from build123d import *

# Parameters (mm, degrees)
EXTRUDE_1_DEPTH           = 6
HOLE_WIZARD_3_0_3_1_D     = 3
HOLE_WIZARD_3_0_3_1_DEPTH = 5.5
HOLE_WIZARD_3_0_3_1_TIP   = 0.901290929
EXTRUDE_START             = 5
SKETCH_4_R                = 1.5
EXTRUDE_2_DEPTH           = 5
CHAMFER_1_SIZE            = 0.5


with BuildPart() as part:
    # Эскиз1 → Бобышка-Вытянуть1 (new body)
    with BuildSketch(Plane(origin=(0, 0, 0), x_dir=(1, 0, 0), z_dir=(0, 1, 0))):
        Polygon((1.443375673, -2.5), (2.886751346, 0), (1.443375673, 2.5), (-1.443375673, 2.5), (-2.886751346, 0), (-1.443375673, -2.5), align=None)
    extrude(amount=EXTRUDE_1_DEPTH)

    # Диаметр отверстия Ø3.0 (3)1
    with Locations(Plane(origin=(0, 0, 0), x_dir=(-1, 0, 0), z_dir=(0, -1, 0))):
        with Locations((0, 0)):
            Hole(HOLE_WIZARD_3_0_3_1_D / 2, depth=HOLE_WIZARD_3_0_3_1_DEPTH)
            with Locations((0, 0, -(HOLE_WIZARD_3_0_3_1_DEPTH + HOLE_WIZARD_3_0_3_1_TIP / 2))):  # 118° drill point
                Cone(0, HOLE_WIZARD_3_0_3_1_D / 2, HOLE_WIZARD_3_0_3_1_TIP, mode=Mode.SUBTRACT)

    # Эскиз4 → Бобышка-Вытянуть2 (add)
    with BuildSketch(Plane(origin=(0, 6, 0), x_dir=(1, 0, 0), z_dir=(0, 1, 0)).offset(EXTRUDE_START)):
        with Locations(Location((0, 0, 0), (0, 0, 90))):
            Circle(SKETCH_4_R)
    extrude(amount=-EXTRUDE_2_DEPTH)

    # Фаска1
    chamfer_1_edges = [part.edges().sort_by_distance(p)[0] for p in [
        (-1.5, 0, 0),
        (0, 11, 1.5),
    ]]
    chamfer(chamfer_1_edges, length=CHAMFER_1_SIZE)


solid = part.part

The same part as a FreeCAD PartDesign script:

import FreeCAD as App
import Part
import Sketcher
from FreeCAD import Vector
Q = App.Units.Quantity


def edges_at(feature, points):
    """Names of the edges that pass closest to the given points."""
    edges = feature.Shape.Edges
    near = lambda p: min(range(len(edges)), key=lambda i: edges[i].distToShape(Part.Vertex(*p))[0])
    return sorted({f"Edge{near(p) + 1}" for p in points})


def add_polygon(sketch, points):
    """Adds a closed chain of lines whose ends are joined by coincident constraints."""
    first, n = sketch.GeometryCount, len(points)
    for a, b in zip(points, points[1:] + points[:1]):
        sketch.addGeometry(Part.LineSegment(App.Vector(*a, 0), App.Vector(*b, 0)), False)
    for i in range(n):
        sketch.addConstraint(Sketcher.Constraint("Coincident", first + i, 2, first + (i + 1) % n, 1))

doc = App.newDocument("Part")
body = doc.addObject("PartDesign::Body", "Body")

# Sketch on XZ plane
sketch1 = body.newObject("Sketcher::SketchObject", "Sketch")
sketch1.AttachmentSupport = (doc.getObject("XZ_Plane"), [""])
sketch1.MapMode = "FlatFace"
add_polygon(sketch1, [(1.4, 2.5), (2.9, 0), (1.4, -2.5), (-1.4, -2.5), (-2.9, 0), (-1.4, 2.5)])  # lines 0-5
sketch1.addConstraint([
    Sketcher.Constraint("Horizontal", 2),
    Sketcher.Constraint("Horizontal", 5),
    Sketcher.Constraint("Symmetric", 0, 2, 3, 2, -1, 1),
    Sketcher.Constraint("Symmetric", 1, 2, 4, 2, -1, 1),
    Sketcher.Constraint("PointOnObject", 0, 2, -1),
    Sketcher.Constraint("Parallel", 0, 3),
    Sketcher.Constraint("Vertical", 2, 2, 4, 2),
    Sketcher.Constraint("Angle", 0, Q("-60 deg")),
    Sketcher.Constraint("DistanceY", 2, 2, 4, 2, 5.0),
    Sketcher.Constraint("DistanceX", 2, 2, 2, 1, 2.886751),
])
pad1 = body.newObject("PartDesign::Pad", "Pad")
pad1.Profile = sketch1
pad1.Length = 6
pad1.Reversed = True

# Sketch on XZ plane
sketch2 = body.newObject("Sketcher::SketchObject", "Sketch001")
sketch2.AttachmentSupport = (doc.getObject("XZ_Plane"), [""])
sketch2.MapMode = "FlatFace"
sketch2.addGeometry(Part.Circle(Vector(0, 0, 0), Vector(0, 0, 1), 1.5), False)
sketch2.addConstraint([
    Sketcher.Constraint("Coincident", 0, 3, -1, 1),
    Sketcher.Constraint("Diameter", 0, 3.0),
])
doc.recompute()
hole = body.newObject("PartDesign::Hole", "Hole")
hole.Profile = sketch2
hole.ThreadType = "None"
hole.Diameter = 3
hole.DepthType = "Dimension"
hole.Depth = 5.5
hole.DrillPoint = "Angled"
hole.DrillPointAngle = 118

# Sketch on XZ plane
sketch3 = body.newObject("Sketcher::SketchObject", "Sketch002")
sketch3.AttachmentSupport = (doc.getObject("XZ_Plane"), [""])
sketch3.MapMode = "FlatFace"
sketch3.AttachmentOffset = App.Placement(Vector(0, 0, -11), App.Rotation())
sketch3.addGeometry(Part.Circle(Vector(0, 0, 0), Vector(0, 0, 1), 1.5), False)
sketch3.addConstraint([
    Sketcher.Constraint("Coincident", 0, 3, -1, 1),
    Sketcher.Constraint("Diameter", 0, 3.0),
])
pad2 = body.newObject("PartDesign::Pad", "Pad001")
pad2.Profile = sketch3
pad2.Length = 5
doc.recompute()

chamfer = body.newObject("PartDesign::Chamfer", "Chamfer")
chamfer.Base = (pad2, edges_at(pad2, [(-1.5, 0, 0), (0, 11, 1.5)]))
chamfer.Size = 0.5

doc.recompute()
